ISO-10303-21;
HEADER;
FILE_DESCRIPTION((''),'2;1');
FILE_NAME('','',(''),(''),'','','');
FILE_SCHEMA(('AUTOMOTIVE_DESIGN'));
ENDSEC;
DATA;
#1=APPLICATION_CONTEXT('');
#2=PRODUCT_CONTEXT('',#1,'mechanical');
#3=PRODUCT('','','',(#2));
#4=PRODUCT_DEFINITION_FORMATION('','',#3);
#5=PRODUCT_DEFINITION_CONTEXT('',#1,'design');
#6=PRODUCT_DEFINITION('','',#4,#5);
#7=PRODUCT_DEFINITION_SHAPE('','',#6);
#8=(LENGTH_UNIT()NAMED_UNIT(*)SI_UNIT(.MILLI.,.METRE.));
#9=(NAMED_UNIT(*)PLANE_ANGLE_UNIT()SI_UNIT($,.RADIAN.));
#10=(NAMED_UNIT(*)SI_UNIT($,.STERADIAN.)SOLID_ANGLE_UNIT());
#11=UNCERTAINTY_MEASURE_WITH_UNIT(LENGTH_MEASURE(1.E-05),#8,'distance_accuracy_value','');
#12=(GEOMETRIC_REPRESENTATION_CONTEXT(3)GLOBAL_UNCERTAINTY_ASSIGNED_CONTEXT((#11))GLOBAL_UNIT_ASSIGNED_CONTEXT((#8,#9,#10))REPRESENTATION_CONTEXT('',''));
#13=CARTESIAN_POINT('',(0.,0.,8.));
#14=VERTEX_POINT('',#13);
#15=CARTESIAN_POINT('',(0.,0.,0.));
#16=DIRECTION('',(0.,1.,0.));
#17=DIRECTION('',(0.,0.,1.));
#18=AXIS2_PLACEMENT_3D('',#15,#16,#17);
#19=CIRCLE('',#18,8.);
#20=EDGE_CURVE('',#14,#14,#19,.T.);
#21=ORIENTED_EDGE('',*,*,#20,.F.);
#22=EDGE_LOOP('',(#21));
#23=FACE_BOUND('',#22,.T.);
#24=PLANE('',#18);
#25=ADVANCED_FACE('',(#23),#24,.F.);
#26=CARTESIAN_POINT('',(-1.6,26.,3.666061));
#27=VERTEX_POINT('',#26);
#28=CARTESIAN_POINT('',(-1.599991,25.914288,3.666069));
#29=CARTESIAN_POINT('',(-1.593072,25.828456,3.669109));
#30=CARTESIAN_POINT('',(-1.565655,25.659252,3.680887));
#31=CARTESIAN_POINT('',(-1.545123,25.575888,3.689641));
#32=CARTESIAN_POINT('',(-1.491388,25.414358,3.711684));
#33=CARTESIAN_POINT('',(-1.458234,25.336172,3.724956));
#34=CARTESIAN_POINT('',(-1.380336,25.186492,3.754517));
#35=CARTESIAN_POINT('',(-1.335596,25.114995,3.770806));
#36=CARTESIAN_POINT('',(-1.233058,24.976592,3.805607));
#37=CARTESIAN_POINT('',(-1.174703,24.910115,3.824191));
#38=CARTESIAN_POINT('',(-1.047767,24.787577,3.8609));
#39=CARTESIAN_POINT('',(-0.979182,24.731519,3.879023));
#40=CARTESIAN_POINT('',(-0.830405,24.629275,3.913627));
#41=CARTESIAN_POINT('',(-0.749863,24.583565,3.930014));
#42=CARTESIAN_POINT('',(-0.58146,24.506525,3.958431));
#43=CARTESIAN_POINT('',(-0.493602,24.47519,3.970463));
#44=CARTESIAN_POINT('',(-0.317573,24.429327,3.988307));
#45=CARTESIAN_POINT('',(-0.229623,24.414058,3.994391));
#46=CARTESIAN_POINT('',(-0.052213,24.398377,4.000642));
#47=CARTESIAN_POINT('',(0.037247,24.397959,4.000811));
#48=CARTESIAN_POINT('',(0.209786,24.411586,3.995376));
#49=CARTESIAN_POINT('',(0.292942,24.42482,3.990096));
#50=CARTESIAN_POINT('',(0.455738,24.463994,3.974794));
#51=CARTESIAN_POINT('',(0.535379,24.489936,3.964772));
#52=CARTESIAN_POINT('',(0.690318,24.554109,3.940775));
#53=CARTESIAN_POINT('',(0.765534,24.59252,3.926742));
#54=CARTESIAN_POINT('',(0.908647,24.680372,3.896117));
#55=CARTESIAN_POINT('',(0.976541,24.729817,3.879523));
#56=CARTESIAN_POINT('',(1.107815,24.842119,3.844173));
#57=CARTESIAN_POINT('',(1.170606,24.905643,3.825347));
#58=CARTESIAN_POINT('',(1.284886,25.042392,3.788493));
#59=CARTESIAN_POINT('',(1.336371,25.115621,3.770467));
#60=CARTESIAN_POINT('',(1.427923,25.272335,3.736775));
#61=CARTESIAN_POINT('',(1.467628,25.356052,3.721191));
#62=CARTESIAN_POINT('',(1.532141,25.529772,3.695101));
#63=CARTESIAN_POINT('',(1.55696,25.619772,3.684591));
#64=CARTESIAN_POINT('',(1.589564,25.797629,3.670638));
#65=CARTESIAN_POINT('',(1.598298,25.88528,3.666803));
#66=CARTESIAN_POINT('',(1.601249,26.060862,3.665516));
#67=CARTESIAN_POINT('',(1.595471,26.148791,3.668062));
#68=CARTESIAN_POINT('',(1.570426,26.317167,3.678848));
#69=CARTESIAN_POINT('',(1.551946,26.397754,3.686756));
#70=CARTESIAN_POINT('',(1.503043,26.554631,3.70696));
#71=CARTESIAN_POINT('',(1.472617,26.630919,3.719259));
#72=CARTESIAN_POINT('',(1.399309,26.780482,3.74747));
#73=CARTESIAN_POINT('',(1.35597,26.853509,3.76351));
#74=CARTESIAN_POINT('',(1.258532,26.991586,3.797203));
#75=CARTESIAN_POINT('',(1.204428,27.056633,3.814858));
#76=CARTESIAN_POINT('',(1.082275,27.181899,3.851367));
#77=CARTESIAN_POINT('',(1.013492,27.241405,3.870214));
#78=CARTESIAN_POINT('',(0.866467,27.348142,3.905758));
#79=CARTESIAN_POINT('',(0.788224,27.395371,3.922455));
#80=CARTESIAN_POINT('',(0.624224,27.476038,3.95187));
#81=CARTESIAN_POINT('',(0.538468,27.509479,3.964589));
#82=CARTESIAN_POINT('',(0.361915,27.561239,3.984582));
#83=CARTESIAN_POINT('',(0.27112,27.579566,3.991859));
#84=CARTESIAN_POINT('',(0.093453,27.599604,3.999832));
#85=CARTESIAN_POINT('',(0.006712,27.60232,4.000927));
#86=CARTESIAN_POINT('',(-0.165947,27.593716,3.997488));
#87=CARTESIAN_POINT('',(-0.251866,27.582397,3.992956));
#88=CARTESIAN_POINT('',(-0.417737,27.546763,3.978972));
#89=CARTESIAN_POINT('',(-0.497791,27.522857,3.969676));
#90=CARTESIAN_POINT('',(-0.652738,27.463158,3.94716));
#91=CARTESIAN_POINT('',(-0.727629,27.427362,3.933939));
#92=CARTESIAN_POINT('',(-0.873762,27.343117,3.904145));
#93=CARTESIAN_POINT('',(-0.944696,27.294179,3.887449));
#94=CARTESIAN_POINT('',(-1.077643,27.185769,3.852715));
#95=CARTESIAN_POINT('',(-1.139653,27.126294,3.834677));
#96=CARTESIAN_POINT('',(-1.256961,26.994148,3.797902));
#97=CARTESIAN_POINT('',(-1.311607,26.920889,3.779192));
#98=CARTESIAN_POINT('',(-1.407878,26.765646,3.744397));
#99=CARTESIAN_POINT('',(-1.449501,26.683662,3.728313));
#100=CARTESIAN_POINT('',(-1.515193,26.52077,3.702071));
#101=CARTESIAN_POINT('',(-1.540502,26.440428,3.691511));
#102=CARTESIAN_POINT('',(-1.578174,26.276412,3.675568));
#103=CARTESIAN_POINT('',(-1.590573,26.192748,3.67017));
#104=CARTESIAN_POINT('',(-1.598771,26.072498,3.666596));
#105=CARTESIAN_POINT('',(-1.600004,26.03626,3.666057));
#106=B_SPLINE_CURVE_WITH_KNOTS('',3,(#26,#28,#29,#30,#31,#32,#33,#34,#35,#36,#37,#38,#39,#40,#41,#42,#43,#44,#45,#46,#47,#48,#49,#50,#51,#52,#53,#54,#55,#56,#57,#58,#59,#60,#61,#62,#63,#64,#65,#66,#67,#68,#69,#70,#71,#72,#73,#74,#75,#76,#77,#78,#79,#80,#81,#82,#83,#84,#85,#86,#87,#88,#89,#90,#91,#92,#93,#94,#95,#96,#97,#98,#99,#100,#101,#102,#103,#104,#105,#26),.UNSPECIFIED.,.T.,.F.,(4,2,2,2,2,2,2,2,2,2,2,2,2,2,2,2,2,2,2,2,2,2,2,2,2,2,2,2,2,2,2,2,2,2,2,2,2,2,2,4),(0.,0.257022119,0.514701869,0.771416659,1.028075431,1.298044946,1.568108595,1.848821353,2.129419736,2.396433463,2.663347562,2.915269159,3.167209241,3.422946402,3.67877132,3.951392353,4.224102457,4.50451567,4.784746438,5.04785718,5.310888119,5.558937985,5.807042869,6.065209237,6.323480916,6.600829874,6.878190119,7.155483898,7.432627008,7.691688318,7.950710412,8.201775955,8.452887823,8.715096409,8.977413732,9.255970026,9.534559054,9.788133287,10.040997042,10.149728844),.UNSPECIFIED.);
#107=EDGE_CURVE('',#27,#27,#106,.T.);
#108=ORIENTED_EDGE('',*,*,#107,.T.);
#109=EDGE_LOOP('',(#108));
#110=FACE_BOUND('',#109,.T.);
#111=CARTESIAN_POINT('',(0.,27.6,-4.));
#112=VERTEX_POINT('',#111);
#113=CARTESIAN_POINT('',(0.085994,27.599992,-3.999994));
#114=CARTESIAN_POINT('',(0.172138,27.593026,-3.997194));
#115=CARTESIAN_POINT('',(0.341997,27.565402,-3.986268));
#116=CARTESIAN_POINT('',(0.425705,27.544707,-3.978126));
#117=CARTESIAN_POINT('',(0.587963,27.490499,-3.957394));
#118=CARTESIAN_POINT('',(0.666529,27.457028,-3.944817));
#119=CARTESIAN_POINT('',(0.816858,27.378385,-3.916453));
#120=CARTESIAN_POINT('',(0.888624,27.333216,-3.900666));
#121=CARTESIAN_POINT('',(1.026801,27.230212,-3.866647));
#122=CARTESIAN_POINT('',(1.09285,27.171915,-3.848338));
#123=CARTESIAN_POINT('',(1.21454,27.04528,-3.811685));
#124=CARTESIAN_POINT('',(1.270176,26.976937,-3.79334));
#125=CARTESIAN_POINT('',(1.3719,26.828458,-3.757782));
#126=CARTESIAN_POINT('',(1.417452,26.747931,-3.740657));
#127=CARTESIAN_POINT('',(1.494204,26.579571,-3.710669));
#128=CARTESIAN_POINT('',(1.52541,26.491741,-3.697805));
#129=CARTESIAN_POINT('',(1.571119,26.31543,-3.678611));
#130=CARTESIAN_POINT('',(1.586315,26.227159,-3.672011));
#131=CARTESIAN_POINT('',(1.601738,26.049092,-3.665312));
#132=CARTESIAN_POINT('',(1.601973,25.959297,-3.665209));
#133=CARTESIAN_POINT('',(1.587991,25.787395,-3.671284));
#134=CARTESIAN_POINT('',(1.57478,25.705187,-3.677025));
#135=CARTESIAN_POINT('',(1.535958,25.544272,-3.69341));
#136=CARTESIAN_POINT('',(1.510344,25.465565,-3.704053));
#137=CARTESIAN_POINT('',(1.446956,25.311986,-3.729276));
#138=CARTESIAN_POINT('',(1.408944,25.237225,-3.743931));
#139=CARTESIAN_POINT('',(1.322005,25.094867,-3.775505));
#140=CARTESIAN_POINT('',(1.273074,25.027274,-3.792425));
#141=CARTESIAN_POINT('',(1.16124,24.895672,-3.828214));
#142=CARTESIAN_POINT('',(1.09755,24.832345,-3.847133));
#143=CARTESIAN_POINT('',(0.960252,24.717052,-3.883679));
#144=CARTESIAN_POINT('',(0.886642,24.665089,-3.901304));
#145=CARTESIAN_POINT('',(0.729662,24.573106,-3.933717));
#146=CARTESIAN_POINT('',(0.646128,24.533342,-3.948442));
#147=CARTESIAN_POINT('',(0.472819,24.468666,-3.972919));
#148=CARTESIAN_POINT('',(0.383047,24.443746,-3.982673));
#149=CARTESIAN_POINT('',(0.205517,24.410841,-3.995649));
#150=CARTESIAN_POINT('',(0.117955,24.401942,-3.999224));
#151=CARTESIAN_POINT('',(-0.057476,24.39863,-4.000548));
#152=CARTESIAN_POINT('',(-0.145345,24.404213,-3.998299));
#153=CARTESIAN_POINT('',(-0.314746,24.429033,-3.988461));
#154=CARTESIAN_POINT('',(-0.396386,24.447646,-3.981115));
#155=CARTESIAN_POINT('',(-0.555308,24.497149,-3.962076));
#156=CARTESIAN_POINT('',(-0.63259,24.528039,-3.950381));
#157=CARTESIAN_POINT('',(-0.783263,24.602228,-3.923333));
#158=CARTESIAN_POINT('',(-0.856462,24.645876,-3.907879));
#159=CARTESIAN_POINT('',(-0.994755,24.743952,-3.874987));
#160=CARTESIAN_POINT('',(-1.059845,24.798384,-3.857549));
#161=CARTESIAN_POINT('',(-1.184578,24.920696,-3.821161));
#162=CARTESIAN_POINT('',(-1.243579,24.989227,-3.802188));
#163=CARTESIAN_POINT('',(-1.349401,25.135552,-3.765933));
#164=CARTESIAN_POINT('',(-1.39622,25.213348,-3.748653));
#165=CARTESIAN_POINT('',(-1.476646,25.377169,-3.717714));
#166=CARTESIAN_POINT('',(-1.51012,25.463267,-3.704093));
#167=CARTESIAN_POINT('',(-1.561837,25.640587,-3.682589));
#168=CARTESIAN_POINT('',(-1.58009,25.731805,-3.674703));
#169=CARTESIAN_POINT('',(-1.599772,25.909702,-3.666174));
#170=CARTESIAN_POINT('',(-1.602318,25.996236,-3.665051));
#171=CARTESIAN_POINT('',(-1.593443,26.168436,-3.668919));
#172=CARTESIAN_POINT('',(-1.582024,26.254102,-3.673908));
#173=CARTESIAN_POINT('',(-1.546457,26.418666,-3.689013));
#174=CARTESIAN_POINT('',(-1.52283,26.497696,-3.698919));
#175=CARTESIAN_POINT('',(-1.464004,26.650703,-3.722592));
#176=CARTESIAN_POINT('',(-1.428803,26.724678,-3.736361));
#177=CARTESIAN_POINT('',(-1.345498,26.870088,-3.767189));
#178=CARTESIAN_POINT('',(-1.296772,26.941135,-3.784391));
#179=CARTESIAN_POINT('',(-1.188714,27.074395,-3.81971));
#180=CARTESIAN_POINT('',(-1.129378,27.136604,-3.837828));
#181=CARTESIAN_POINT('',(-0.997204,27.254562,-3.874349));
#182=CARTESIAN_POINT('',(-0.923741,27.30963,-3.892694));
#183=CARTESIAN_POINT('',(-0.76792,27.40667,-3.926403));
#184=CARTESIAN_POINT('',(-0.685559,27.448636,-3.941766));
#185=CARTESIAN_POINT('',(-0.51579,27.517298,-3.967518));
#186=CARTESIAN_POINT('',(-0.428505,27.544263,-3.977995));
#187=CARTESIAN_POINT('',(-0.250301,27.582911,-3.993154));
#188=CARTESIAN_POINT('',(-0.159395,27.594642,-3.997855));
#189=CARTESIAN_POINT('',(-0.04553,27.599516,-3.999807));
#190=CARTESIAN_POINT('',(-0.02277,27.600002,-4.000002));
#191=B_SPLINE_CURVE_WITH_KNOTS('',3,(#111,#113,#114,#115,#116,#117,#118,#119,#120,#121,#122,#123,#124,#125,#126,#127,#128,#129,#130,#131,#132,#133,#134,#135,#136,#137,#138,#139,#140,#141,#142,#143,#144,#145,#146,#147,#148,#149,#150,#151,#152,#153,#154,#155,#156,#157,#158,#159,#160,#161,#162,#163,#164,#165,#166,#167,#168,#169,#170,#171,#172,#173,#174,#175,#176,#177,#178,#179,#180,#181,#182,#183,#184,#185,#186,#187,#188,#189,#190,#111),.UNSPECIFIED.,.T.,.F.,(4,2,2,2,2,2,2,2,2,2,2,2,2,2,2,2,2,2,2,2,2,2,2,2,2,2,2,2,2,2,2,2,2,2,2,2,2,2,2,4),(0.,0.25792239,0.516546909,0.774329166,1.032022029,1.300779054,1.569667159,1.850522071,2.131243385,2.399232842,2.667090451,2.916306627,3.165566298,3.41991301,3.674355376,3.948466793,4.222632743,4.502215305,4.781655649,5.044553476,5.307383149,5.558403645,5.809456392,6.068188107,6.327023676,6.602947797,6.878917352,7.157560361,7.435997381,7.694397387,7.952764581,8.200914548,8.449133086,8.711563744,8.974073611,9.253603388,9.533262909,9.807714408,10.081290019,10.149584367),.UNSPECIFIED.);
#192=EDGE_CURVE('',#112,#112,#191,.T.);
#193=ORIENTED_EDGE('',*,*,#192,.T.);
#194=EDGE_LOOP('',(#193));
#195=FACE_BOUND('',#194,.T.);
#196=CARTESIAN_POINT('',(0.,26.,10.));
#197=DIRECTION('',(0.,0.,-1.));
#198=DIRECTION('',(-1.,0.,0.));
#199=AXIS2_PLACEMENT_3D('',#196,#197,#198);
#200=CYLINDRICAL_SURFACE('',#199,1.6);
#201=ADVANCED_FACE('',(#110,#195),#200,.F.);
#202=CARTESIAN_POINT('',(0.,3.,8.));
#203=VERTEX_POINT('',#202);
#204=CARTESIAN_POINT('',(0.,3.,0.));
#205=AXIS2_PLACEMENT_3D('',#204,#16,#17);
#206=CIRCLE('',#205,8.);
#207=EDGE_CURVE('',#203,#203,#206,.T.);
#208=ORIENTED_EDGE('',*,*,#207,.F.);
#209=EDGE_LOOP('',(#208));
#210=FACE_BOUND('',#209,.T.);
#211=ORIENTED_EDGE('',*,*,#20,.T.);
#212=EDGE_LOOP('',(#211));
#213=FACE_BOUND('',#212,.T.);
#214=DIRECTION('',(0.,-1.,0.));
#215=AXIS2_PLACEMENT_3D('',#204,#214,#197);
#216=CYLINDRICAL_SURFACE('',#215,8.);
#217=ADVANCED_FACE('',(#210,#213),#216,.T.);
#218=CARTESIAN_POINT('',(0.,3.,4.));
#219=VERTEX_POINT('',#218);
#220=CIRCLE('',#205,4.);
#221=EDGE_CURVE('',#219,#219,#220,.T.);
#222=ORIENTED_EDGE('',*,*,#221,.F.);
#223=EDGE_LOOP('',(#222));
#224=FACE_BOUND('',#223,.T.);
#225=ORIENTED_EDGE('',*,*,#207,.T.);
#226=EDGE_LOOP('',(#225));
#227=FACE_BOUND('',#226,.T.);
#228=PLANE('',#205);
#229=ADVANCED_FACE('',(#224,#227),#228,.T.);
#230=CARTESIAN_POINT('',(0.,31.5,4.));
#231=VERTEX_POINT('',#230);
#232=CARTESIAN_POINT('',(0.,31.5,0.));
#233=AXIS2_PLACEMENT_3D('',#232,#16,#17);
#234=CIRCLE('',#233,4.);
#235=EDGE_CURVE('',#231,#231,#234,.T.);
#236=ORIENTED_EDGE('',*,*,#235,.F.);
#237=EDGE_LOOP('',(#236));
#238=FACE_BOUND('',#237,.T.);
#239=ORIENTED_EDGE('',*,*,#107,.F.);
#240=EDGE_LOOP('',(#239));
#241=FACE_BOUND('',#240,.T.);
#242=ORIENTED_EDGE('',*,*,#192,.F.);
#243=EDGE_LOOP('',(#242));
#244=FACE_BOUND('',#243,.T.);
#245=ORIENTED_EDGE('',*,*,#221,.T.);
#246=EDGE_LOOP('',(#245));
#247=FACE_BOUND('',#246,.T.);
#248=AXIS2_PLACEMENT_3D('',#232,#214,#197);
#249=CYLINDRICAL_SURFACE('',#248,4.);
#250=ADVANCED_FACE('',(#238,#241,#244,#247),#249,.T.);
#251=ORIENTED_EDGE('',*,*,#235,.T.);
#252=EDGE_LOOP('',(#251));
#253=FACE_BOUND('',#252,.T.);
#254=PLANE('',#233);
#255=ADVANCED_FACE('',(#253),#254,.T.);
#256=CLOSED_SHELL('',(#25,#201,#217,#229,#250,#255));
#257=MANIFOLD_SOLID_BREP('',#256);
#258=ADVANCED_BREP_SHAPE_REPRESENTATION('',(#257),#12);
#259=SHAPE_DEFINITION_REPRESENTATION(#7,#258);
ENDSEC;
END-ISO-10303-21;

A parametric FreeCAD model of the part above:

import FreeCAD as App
import Part
import Sketcher
Q = App.Units.Quantity

doc = App.newDocument("Part")
params = doc.addObject("Spreadsheet::Sheet", "Params")
for row, (alias, value) in enumerate([
    ("sketch1_diameter", "16 mm"),
    ("sketch1_diameter2", "8 mm"),
    ("pad1_length", "3 mm"),
    ("sketch2_diameter", "8 mm"),
    ("pad2_length", "31.5 mm"),
    ("sketch3_diameter", "3.2 mm"),
], start=1):
    params.set(f"A{row}", alias)
    params.set(f"B{row}", "=" + value)
    params.setAlias(f"B{row}", alias)

body = doc.addObject("PartDesign::Body", "Body")

sketch1 = body.newObject("Sketcher::SketchObject", "Sketch")
sketch1.AttachmentSupport = (doc.getObject("XZ_Plane"), [""])
sketch1.MapMode = "FlatFace"
sketch1.addGeometry(Part.Circle(App.Vector(0, 0, 0), App.Vector(0, 0, 1), 8), False)
sketch1.addGeometry(Part.Circle(App.Vector(0, 0, 0), App.Vector(0, 0, 1), 4), False)
sketch1.addConstraint(Sketcher.Constraint("Coincident", 0, 3, -1, 1))
sketch1.addConstraint(Sketcher.Constraint("Coincident", 1, 3, -1, 1))
sketch1.addConstraint(Sketcher.Constraint("Diameter", 0, Q("16 mm")))
sketch1.addConstraint(Sketcher.Constraint("Diameter", 1, Q("8 mm")))
sketch1.setExpression("Constraints[2]", "Params.sketch1_diameter")
sketch1.setExpression("Constraints[3]", "Params.sketch1_diameter2")
pad1 = body.newObject("PartDesign::Pad", "Pad")
pad1.Profile = sketch1
pad1.setExpression("Length", "Params.pad1_length")
pad1.Reversed = True

sketch2 = body.newObject("Sketcher::SketchObject", "Sketch001")
sketch2.AttachmentSupport = (doc.getObject("XZ_Plane"), [""])
sketch2.MapMode = "FlatFace"
sketch2.addGeometry(Part.Circle(App.Vector(0, 0, 0), App.Vector(0, 0, 1), 4), False)
sketch2.addConstraint(Sketcher.Constraint("Coincident", 0, 3, -1, 1))
sketch2.addConstraint(Sketcher.Constraint("Diameter", 0, Q("8 mm")))
sketch2.setExpression("Constraints[1]", "Params.sketch2_diameter")
pad2 = body.newObject("PartDesign::Pad", "Pad001")
pad2.Profile = sketch2
pad2.setExpression("Length", "Params.pad2_length")
pad2.Reversed = True

sketch3 = body.newObject("Sketcher::SketchObject", "Sketch002")
sketch3.AttachmentSupport = (doc.getObject("XY_Plane"), [""])
sketch3.MapMode = "FlatFace"
sketch3.addGeometry(Part.Circle(App.Vector(0, 26, 0), App.Vector(0, 0, 1), 1.6), False)
sketch3.addConstraint(Sketcher.Constraint("PointOnObject", 0, 3, -2))
sketch3.addConstraint(Sketcher.Constraint("Diameter", 0, Q("3.2 mm")))
sketch3.addConstraint(Sketcher.Constraint("DistanceY", -1, 1, 0, 3, Q("26 mm")))
sketch3.setExpression("Constraints[1]", "Params.sketch3_diameter")
pocket1 = body.newObject("PartDesign::Pocket", "Pocket")
pocket1.Profile = sketch3
pocket1.Type = "ThroughAll"
pocket1.Midplane = True

doc.recompute()
